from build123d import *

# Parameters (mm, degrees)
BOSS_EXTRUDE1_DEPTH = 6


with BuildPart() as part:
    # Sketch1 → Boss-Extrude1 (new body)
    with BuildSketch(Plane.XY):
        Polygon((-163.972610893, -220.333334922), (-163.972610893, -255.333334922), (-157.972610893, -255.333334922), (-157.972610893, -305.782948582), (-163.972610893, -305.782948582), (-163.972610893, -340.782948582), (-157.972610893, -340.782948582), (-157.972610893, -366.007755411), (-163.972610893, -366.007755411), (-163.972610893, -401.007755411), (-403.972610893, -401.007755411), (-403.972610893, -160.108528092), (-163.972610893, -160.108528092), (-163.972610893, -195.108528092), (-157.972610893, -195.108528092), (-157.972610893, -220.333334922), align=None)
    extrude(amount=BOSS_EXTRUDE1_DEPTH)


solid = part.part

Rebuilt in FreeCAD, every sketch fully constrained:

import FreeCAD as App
import Part
import Sketcher
Q = App.Units.Quantity

doc = App.newDocument("Part")
body = doc.addObject("PartDesign::Body", "Body")

# Sketch on XY plane
sketch1 = body.newObject("Sketcher::SketchObject", "Sketch")
sketch1.AttachmentSupport = (doc.getObject("XY_Plane"), [""])
sketch1.MapMode = "FlatFace"
sketch1.addGeometry([
    Part.LineSegment(App.Vector(-164, -255, 0), App.Vector(-164, -220, 0)),  # 0
    Part.LineSegment(App.Vector(-164, -220, 0), App.Vector(-158, -220, 0)),  # 1
    Part.LineSegment(App.Vector(-158, -220, 0), App.Vector(-158, -195, 0)),  # 2
    Part.LineSegment(App.Vector(-158, -195, 0), App.Vector(-164, -195, 0)),  # 3
    Part.LineSegment(App.Vector(-164, -195, 0), App.Vector(-164, -160, 0)),  # 4
    Part.LineSegment(App.Vector(-164, -160, 0), App.Vector(-404, -160, 0)),  # 5
    Part.LineSegment(App.Vector(-404, -160, 0), App.Vector(-404, -401, 0)),  # 6
    Part.LineSegment(App.Vector(-404, -401, 0), App.Vector(-164, -401, 0)),  # 7
    Part.LineSegment(App.Vector(-164, -401, 0), App.Vector(-164, -366, 0)),  # 8
    Part.LineSegment(App.Vector(-164, -366, 0), App.Vector(-158, -366, 0)),  # 9
    Part.LineSegment(App.Vector(-158, -366, 0), App.Vector(-158, -341, 0)),  # 10
    Part.LineSegment(App.Vector(-158, -341, 0), App.Vector(-164, -341, 0)),  # 11
    Part.LineSegment(App.Vector(-164, -341, 0), App.Vector(-164, -306, 0)),  # 12
    Part.LineSegment(App.Vector(-164, -306, 0), App.Vector(-158, -306, 0)),  # 13
    Part.LineSegment(App.Vector(-158, -306, 0), App.Vector(-158, -255, 0)),  # 14
    Part.LineSegment(App.Vector(-158, -255, 0), App.Vector(-164, -255, 0)),  # 15
], False)
sketch1.addConstraint([
    Sketcher.Constraint("Coincident", 0, 2, 1, 1),
    Sketcher.Constraint("Coincident", 1, 2, 2, 1),
    Sketcher.Constraint("Coincident", 2, 2, 3, 1),
    Sketcher.Constraint("Coincident", 3, 2, 4, 1),
    Sketcher.Constraint("Coincident", 4, 2, 5, 1),
    Sketcher.Constraint("Coincident", 5, 2, 6, 1),
    Sketcher.Constraint("Coincident", 6, 2, 7, 1),
    Sketcher.Constraint("Coincident", 7, 2, 8, 1),
    Sketcher.Constraint("Coincident", 8, 2, 9, 1),
    Sketcher.Constraint("Coincident", 9, 2, 10, 1),
    Sketcher.Constraint("Coincident", 10, 2, 11, 1),
    Sketcher.Constraint("Coincident", 11, 2, 12, 1),
    Sketcher.Constraint("Coincident", 12, 2, 13, 1),
    Sketcher.Constraint("Coincident", 13, 2, 14, 1),
    Sketcher.Constraint("Coincident", 14, 2, 15, 1),
    Sketcher.Constraint("Coincident", 15, 2, 0, 1),
    Sketcher.Constraint("Vertical", 0),
    Sketcher.Constraint("Horizontal", 1),
    Sketcher.Constraint("Vertical", 2),
    Sketcher.Constraint("Horizontal", 3),
    Sketcher.Constraint("Vertical", 4),
    Sketcher.Constraint("Horizontal", 5),
    Sketcher.Constraint("Vertical", 6),
    Sketcher.Constraint("Horizontal", 7),
    Sketcher.Constraint("Vertical", 8),
    Sketcher.Constraint("Horizontal", 9),
    Sketcher.Constraint("Vertical", 10),
    Sketcher.Constraint("Horizontal", 11),
    Sketcher.Constraint("Vertical", 12),
    Sketcher.Constraint("Horizontal", 13),
    Sketcher.Constraint("Vertical", 14),
    Sketcher.Constraint("Horizontal", 15),
    Sketcher.Constraint("Vertical", 0, 2, 3, 2),
    Sketcher.Constraint("Vertical", 4, 2, 7, 2),
    Sketcher.Constraint("Vertical", 2, 2, 9, 2),
    Sketcher.Constraint("Vertical", 8, 2, 11, 2),
    Sketcher.Constraint("Vertical", 10, 2, 13, 2),
    Sketcher.Constraint("Equal", 0, 4),
    Sketcher.Constraint("Equal", 4, 8),
    Sketcher.Constraint("Equal", 2, 10),
    Sketcher.Constraint("Equal", 8, 12),
    Sketcher.Constraint("DistanceX", 1, 1, 1, 2, Q("6 mm")),
    Sketcher.Constraint("DistanceX", 5, 2, 5, 1, Q("240 mm")),
    Sketcher.Constraint("DistanceY", 0, 1, 0, 2, Q("35 mm")),
    Sketcher.Constraint("DistanceY", 2, 1, 2, 2, Q("25.224807 mm")),
    Sketcher.Constraint("DistanceY", 6, 2, 6, 1, Q("240.899227 mm")),
    Sketcher.Constraint("DistanceX", 0, 2, -1, 1, Q("163.972611 mm")),
    Sketcher.Constraint("DistanceY", 2, 2, -1, 1, Q("195.108528 mm")),
])
pad1 = body.newObject("PartDesign::Pad", "Pad")
pad1.Profile = sketch1
pad1.Length = 6

doc.recompute()
